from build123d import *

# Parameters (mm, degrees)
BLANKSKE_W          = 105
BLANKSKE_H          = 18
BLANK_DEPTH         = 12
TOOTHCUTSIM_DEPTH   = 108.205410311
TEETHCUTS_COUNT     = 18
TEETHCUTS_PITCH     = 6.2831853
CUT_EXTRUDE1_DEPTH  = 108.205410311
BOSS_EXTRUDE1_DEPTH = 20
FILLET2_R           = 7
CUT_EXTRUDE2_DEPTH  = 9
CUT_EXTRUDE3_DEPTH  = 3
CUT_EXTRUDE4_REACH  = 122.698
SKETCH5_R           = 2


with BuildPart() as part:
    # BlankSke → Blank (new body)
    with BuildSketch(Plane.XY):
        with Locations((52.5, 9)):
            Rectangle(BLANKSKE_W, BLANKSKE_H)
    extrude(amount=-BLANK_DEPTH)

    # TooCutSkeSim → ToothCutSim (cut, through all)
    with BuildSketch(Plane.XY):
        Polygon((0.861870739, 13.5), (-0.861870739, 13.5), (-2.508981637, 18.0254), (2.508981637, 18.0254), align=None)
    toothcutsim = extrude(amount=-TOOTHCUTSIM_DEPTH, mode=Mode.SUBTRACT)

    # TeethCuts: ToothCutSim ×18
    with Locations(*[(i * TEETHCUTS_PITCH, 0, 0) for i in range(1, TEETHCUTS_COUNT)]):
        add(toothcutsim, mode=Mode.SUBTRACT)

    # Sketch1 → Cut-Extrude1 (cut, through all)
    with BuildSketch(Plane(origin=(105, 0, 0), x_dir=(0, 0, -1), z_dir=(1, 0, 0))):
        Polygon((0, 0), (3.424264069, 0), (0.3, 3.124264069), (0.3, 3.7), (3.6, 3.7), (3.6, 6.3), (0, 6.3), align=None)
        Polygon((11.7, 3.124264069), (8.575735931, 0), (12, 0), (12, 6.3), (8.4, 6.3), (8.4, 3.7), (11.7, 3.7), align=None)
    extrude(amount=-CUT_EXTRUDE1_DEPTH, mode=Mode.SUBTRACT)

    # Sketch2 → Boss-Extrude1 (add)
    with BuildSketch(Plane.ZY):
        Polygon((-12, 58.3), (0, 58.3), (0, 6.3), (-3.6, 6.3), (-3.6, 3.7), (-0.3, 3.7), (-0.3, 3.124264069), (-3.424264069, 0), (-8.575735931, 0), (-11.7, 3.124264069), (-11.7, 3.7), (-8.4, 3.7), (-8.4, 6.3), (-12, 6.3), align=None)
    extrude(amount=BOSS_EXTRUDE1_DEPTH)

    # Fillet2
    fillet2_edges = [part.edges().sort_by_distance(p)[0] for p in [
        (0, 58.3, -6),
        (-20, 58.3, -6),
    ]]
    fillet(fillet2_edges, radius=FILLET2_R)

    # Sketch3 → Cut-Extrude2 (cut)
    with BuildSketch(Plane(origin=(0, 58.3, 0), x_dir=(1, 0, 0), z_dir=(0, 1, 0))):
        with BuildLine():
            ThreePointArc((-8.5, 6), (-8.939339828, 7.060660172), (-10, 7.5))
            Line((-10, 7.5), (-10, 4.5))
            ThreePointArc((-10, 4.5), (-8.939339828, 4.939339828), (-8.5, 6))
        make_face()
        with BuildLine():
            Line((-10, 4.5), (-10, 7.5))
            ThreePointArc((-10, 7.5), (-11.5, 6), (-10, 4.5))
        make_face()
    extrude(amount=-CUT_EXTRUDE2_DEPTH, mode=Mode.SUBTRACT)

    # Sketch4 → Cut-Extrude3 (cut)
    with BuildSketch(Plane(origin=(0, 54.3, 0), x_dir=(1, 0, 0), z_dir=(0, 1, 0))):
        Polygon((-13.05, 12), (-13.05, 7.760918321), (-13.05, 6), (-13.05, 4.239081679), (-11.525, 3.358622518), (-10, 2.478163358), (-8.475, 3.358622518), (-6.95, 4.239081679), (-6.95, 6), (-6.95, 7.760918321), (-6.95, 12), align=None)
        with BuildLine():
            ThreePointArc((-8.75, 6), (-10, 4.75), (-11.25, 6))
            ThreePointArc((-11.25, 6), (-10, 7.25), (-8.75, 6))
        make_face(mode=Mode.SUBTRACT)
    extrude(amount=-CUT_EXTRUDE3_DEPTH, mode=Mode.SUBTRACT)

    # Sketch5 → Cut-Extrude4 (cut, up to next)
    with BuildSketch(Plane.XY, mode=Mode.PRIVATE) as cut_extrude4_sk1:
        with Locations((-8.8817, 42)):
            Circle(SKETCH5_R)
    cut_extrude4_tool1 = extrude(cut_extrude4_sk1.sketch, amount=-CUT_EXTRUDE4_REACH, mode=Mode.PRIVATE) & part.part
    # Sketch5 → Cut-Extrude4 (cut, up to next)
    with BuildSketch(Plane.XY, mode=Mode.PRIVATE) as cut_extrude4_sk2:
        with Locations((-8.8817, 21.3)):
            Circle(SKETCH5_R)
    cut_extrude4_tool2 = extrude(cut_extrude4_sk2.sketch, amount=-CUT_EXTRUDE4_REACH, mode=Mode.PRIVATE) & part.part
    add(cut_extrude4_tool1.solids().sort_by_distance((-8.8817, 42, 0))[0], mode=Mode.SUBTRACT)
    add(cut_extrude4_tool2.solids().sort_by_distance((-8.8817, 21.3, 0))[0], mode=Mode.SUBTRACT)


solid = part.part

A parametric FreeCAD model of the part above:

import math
import FreeCAD as App
import Part
import Sketcher

V = App.Vector
Q = App.Units.Quantity


def edges_at(feature, points):
    """Names of the edges that pass closest to the given points."""
    edges = feature.Shape.Edges
    near = lambda p: min(range(len(edges)), key=lambda i: edges[i].distToShape(Part.Vertex(*p))[0])
    return sorted({f"Edge{near(p) + 1}" for p in points})

doc = App.newDocument("Part")
body = doc.addObject("PartDesign::Body", "Body")

sketch1 = body.newObject("Sketcher::SketchObject", "Sketch")
sketch1.AttachmentSupport = (doc.getObject("XY_Plane"), [""])
sketch1.MapMode = "FlatFace"
sketch1.addGeometry(Part.LineSegment(V(0, 18, 0), V(0, 0, 0)), False)
sketch1.addGeometry(Part.LineSegment(V(0, 0, 0), V(105, 0, 0)), False)
sketch1.addGeometry(Part.LineSegment(V(105, 0, 0), V(105, 18, 0)), False)
sketch1.addGeometry(Part.LineSegment(V(105, 18, 0), V(0, 18, 0)), False)
sketch1.addConstraint(Sketcher.Constraint("Coincident", 0, 2, 1, 1))
sketch1.addConstraint(Sketcher.Constraint("Coincident", 1, 2, 2, 1))
sketch1.addConstraint(Sketcher.Constraint("Coincident", 2, 2, 3, 1))
sketch1.addConstraint(Sketcher.Constraint("Coincident", 3, 2, 0, 1))
sketch1.addConstraint(Sketcher.Constraint("Vertical", 0))
sketch1.addConstraint(Sketcher.Constraint("Horizontal", 1))
sketch1.addConstraint(Sketcher.Constraint("Vertical", 2))
sketch1.addConstraint(Sketcher.Constraint("Horizontal", 3))
sketch1.addConstraint(Sketcher.Constraint("Coincident", 0, 2, -1, 1))
sketch1.addConstraint(Sketcher.Constraint("DistanceX", 1, 1, 1, 2, 105.0))
sketch1.addConstraint(Sketcher.Constraint("DistanceY", 0, 2, 0, 1, 18.0))
pad1 = body.newObject("PartDesign::Pad", "Pad")
pad1.Profile = sketch1
pad1.Length = 12
pad1.Reversed = True

sketch2 = body.newObject("Sketcher::SketchObject", "Sketch001")
sketch2.AttachmentSupport = (doc.getObject("XY_Plane"), [""])
sketch2.MapMode = "FlatFace"
sketch2.addGeometry(Part.LineSegment(V(-0.861871, 13.5, 0), V(0.861871, 13.5, 0)), False)
sketch2.addGeometry(Part.LineSegment(V(0.861871, 13.5, 0), V(2.508982, 18.0254, 0)), False)
sketch2.addGeometry(Part.LineSegment(V(2.508982, 18.0254, 0), V(-2.508982, 18.0254, 0)), False)
sketch2.addGeometry(Part.LineSegment(V(-2.508982, 18.0254, 0), V(-0.861871, 13.5, 0)), False)
sketch2.addConstraint(Sketcher.Constraint("Coincident", 0, 2, 1, 1))
sketch2.addConstraint(Sketcher.Constraint("Coincident", 1, 2, 2, 1))
sketch2.addConstraint(Sketcher.Constraint("Coincident", 2, 2, 3, 1))
sketch2.addConstraint(Sketcher.Constraint("Coincident", 3, 2, 0, 1))
sketch2.addConstraint(Sketcher.Constraint("Horizontal", 0))
sketch2.addConstraint(Sketcher.Constraint("Horizontal", 2))
sketch2.addConstraint(Sketcher.Constraint("Equal", 1, 3))
sketch2.addConstraint(Sketcher.Constraint("Angle", 1, Q("70 deg")))
sketch2.addConstraint(Sketcher.Constraint("DistanceY", -1, 1, 0, 2, 13.5))
sketch2.addConstraint(Sketcher.Constraint("DistanceX", 0, 1, 0, 2, 1.723741))
sketch2.addConstraint(Sketcher.Constraint("DistanceY", -1, 1, 1, 2, 18.0254))
sketch2.addConstraint(Sketcher.Constraint("DistanceX", -1, 1, 0, 2, 0.861871))
pocket1 = body.newObject("PartDesign::Pocket", "Pocket")
pocket1.Profile = sketch2
pocket1.Type = "ThroughAll"
doc.recompute()

linearpattern = body.newObject("PartDesign::LinearPattern", "LinearPattern")
linearpattern.Originals = [pocket1]
linearpattern.Direction = (doc.getObject("X_Axis"), [""])
linearpattern.Mode = "offset"
linearpattern.Offset = 6.283185
linearpattern.Occurrences = 18
body.Tip = linearpattern

sketch3 = body.newObject("Sketcher::SketchObject", "Sketch002")
sketch3.AttachmentSupport = (doc.getObject("YZ_Plane"), [""])
sketch3.MapMode = "FlatFace"
sketch3.AttachmentOffset = App.Placement(V(0, 0, 105), App.Rotation())
sketch3.addGeometry(Part.LineSegment(V(0, 0, 0), V(0, -3.424264, 0)), False)
sketch3.addGeometry(Part.LineSegment(V(0, -3.424264, 0), V(3.124264, -0.3, 0)), False)
sketch3.addGeometry(Part.LineSegment(V(3.124264, -0.3, 0), V(3.7, -0.3, 0)), False)
sketch3.addGeometry(Part.LineSegment(V(3.7, -0.3, 0), V(3.7, -3.6, 0)), False)
sketch3.addGeometry(Part.LineSegment(V(3.7, -3.6, 0), V(6.3, -3.6, 0)), False)
sketch3.addGeometry(Part.LineSegment(V(6.3, -3.6, 0), V(6.3, 0, 0)), False)
sketch3.addGeometry(Part.LineSegment(V(6.3, 0, 0), V(0, 0, 0)), False)
sketch3.addGeometry(Part.LineSegment(V(3.124264, -11.7, 0), V(0, -8.575736, 0)), False)
sketch3.addGeometry(Part.LineSegment(V(0, -8.575736, 0), V(0, -12, 0)), False)
sketch3.addGeometry(Part.LineSegment(V(0, -12, 0), V(6.3, -12, 0)), False)
sketch3.addGeometry(Part.LineSegment(V(6.3, -12, 0), V(6.3, -8.4, 0)), False)
sketch3.addGeometry(Part.LineSegment(V(6.3, -8.4, 0), V(3.7, -8.4, 0)), False)
sketch3.addGeometry(Part.LineSegment(V(3.7, -8.4, 0), V(3.7, -11.7, 0)), False)
sketch3.addGeometry(Part.LineSegment(V(3.7, -11.7, 0), V(3.124264, -11.7, 0)), False)
sketch3.addConstraint(Sketcher.Constraint("Coincident", 0, 2, 1, 1))
sketch3.addConstraint(Sketcher.Constraint("Coincident", 1, 2, 2, 1))
sketch3.addConstraint(Sketcher.Constraint("Coincident", 2, 2, 3, 1))
sketch3.addConstraint(Sketcher.Constraint("Coincident", 3, 2, 4, 1))
sketch3.addConstraint(Sketcher.Constraint("Coincident", 4, 2, 5, 1))
sketch3.addConstraint(Sketcher.Constraint("Coincident", 5, 2, 6, 1))
sketch3.addConstraint(Sketcher.Constraint("Coincident", 6, 2, 0, 1))
sketch3.addConstraint(Sketcher.Constraint("Coincident", 7, 2, 8, 1))
sketch3.addConstraint(Sketcher.Constraint("Coincident", 8, 2, 9, 1))
sketch3.addConstraint(Sketcher.Constraint("Coincident", 9, 2, 10, 1))
sketch3.addConstraint(Sketcher.Constraint("Coincident", 10, 2, 11, 1))
sketch3.addConstraint(Sketcher.Constraint("Coincident", 11, 2, 12, 1))
sketch3.addConstraint(Sketcher.Constraint("Coincident", 12, 2, 13, 1))
sketch3.addConstraint(Sketcher.Constraint("Coincident", 13, 2, 7, 1))
sketch3.addConstraint(Sketcher.Constraint("Vertical", 0))
sketch3.addConstraint(Sketcher.Constraint("Horizontal", 2))
sketch3.addConstraint(Sketcher.Constraint("Vertical", 3))
sketch3.addConstraint(Sketcher.Constraint("Horizontal", 4))
sketch3.addConstraint(Sketcher.Constraint("Vertical", 5))
sketch3.addConstraint(Sketcher.Constraint("Horizontal", 6))
sketch3.addConstraint(Sketcher.Constraint("Vertical", 8))
sketch3.addConstraint(Sketcher.Constraint("Horizontal", 9))
sketch3.addConstraint(Sketcher.Constraint("Vertical", 10))
sketch3.addConstraint(Sketcher.Constraint("Horizontal", 11))
sketch3.addConstraint(Sketcher.Constraint("Vertical", 12))
sketch3.addConstraint(Sketcher.Constraint("Horizontal", 13))
sketch3.addConstraint(Sketcher.Constraint("Coincident", 6, 2, -1, 1))
sketch3.addConstraint(Sketcher.Constraint("PointOnObject", 7, 2, -2))
sketch3.addConstraint(Sketcher.Constraint("Perpendicular", 1, 7))
sketch3.addConstraint(Sketcher.Constraint("Vertical", 5, 2, 9, 2))
sketch3.addConstraint(Sketcher.Constraint("Vertical", 3, 2, 11, 2))
sketch3.addConstraint(Sketcher.Constraint("Vertical", 1, 2, 13, 2))
sketch3.addConstraint(Sketcher.Constraint("Equal", 0, 8))
sketch3.addConstraint(Sketcher.Constraint("Equal", 5, 10))
sketch3.addConstraint(Sketcher.Constraint("Equal", 3, 12))
sketch3.addConstraint(Sketcher.Constraint("DistanceX", 4, 1, 4, 2, 2.6))
sketch3.addConstraint(Sketcher.Constraint("DistanceX", 6, 2, 6, 1, 6.3))
sketch3.addConstraint(Sketcher.Constraint("DistanceY", 3, 2, 3, 1, 3.3))
sketch3.addConstraint(Sketcher.Constraint("DistanceY", 5, 1, 5, 2, 3.6))
sketch3.addConstraint(Sketcher.Constraint("DistanceY", 8, 2, -1, 1, 12.0))
sketch3.addConstraint(Sketcher.Constraint("DistanceX", 2, 1, 2, 2, 0.575736))
pocket2 = body.newObject("PartDesign::Pocket", "Pocket001")
pocket2.Profile = sketch3
pocket2.Type = "ThroughAll"

sketch4 = body.newObject("Sketcher::SketchObject", "Sketch003")
sketch4.AttachmentSupport = (doc.getObject("YZ_Plane"), [""])
sketch4.MapMode = "FlatFace"
sketch4.addGeometry(Part.LineSegment(V(58.3, 0, 0), V(58.3, -12, 0)), False)
sketch4.addGeometry(Part.LineSegment(V(58.3, -12, 0), V(6.3, -12, 0)), False)
sketch4.addGeometry(Part.LineSegment(V(6.3, -12, 0), V(6.3, -8.4, 0)), False)
sketch4.addGeometry(Part.LineSegment(V(6.3, -8.4, 0), V(3.7, -8.4, 0)), False)
sketch4.addGeometry(Part.LineSegment(V(3.7, -8.4, 0), V(3.7, -11.7, 0)), False)
sketch4.addGeometry(Part.LineSegment(V(3.7, -11.7, 0), V(3.124264, -11.7, 0)), False)
sketch4.addGeometry(Part.LineSegment(V(3.124264, -11.7, 0), V(0, -8.575736, 0)), False)
sketch4.addGeometry(Part.LineSegment(V(0, -8.575736, 0), V(0, -3.424264, 0)), False)
sketch4.addGeometry(Part.LineSegment(V(0, -3.424264, 0), V(3.124264, -0.3, 0)), False)
sketch4.addGeometry(Part.LineSegment(V(3.124264, -0.3, 0), V(3.7, -0.3, 0)), False)
sketch4.addGeometry(Part.LineSegment(V(3.7, -0.3, 0), V(3.7, -3.6, 0)), False)
sketch4.addGeometry(Part.LineSegment(V(3.7, -3.6, 0), V(6.3, -3.6, 0)), False)
sketch4.addGeometry(Part.LineSegment(V(6.3, -3.6, 0), V(6.3, 0, 0)), False)
sketch4.addGeometry(Part.LineSegment(V(6.3, 0, 0), V(58.3, 0, 0)), False)
sketch4.addConstraint(Sketcher.Constraint("Coincident", 0, 2, 1, 1))
sketch4.addConstraint(Sketcher.Constraint("Coincident", 1, 2, 2, 1))
sketch4.addConstraint(Sketcher.Constraint("Coincident", 2, 2, 3, 1))
sketch4.addConstraint(Sketcher.Constraint("Coincident", 3, 2, 4, 1))
sketch4.addConstraint(Sketcher.Constraint("Coincident", 4, 2, 5, 1))
sketch4.addConstraint(Sketcher.Constraint("Coincident", 5, 2, 6, 1))
sketch4.addConstraint(Sketcher.Constraint("Coincident", 6, 2, 7, 1))
sketch4.addConstraint(Sketcher.Constraint("Coincident", 7, 2, 8, 1))
sketch4.addConstraint(Sketcher.Constraint("Coincident", 8, 2, 9, 1))
sketch4.addConstraint(Sketcher.Constraint("Coincident", 9, 2, 10, 1))
sketch4.addConstraint(Sketcher.Constraint("Coincident", 10, 2, 11, 1))
sketch4.addConstraint(Sketcher.Constraint("Coincident", 11, 2, 12, 1))
sketch4.addConstraint(Sketcher.Constraint("Coincident", 12, 2, 13, 1))
sketch4.addConstraint(Sketcher.Constraint("Coincident", 13, 2, 0, 1))
sketch4.addConstraint(Sketcher.Constraint("Vertical", 0))
sketch4.addConstraint(Sketcher.Constraint("Horizontal", 1))
sketch4.addConstraint(Sketcher.Constraint("Vertical", 2))
sketch4.addConstraint(Sketcher.Constraint("Horizontal", 3))
sketch4.addConstraint(Sketcher.Constraint("Vertical", 4))
sketch4.addConstraint(Sketcher.Constraint("Horizontal", 5))
sketch4.addConstraint(Sketcher.Constraint("Vertical", 7))
sketch4.addConstraint(Sketcher.Constraint("Horizontal", 9))
sketch4.addConstraint(Sketcher.Constraint("Vertical", 10))
sketch4.addConstraint(Sketcher.Constraint("Horizontal", 11))
sketch4.addConstraint(Sketcher.Constraint("Vertical", 12))
sketch4.addConstraint(Sketcher.Constraint("Horizontal", 13))
sketch4.addConstraint(Sketcher.Constraint("PointOnObject", 6, 2, -2))
sketch4.addConstraint(Sketcher.Constraint("PointOnObject", 12, 2, -1))
sketch4.addConstraint(Sketcher.Constraint("Perpendicular", 6, 8))
sketch4.addConstraint(Sketcher.Constraint("Vertical", 5, 2, 8, 2))
sketch4.addConstraint(Sketcher.Constraint("Vertical", 4, 2, 9, 2))
sketch4.addConstraint(Sketcher.Constraint("Vertical", 2, 2, 11, 2))
sketch4.addConstraint(Sketcher.Constraint("Equal", 4, 10))
sketch4.addConstraint(Sketcher.Constraint("Equal", 2, 12))
sketch4.addConstraint(Sketcher.Constraint("Equal", 6, 8))
sketch4.addConstraint(Sketcher.Constraint("DistanceX", 1, 2, 1, 1, 52.0))
sketch4.addConstraint(Sketcher.Constraint("DistanceY", 0, 2, 0, 1, 12.0))
sketch4.addConstraint(Sketcher.Constraint("DistanceX", 3, 2, 3, 1, 2.6))
sketch4.addConstraint(Sketcher.Constraint("DistanceY", 2, 1, 2, 2, 3.6))
sketch4.addConstraint(Sketcher.Constraint("DistanceY", 4, 2, 4, 1, 3.3))
sketch4.addConstraint(Sketcher.Constraint("DistanceX", -1, 1, 0, 2, 58.3))
sketch4.addConstraint(Sketcher.Constraint("DistanceY", 7, 1, 7, 2, 5.151472))
pad2 = body.newObject("PartDesign::Pad", "Pad001")
pad2.Profile = sketch4
pad2.Length = 20
pad2.Reversed = True
doc.recompute()

fillet = body.newObject("PartDesign::Fillet", "Fillet")
fillet.Base = (pad2, edges_at(pad2, [(0, 58.3, -6), (-20, 58.3, -6)]))
fillet.Radius = 7

sketch5 = body.newObject("Sketcher::SketchObject", "Sketch004")
sketch5.AttachmentSupport = (doc.getObject("XZ_Plane"), [""])
sketch5.MapMode = "FlatFace"
sketch5.AttachmentOffset = App.Placement(V(0, 0, -58.3), App.Rotation())
sketch5.addGeometry(Part.ArcOfCircle(Part.Circle(V(-10, -6, 0), V(0, 0, 1), 1.5), math.radians(-90), math.radians(0)), False)
sketch5.addGeometry(Part.ArcOfCircle(Part.Circle(V(-10, -6, 0), V(0, 0, 1), 1.5), math.radians(90), math.radians(270)), False)
sketch5.addGeometry(Part.ArcOfCircle(Part.Circle(V(-10, -6, 0), V(0, 0, 1), 1.5), math.radians(0), math.radians(90)), False)
sketch5.addConstraint(Sketcher.Constraint("Tangent", 0, 1, 1, 2))
sketch5.addConstraint(Sketcher.Constraint("Tangent", 1, 1, 2, 2))
sketch5.addConstraint(Sketcher.Constraint("Tangent", 2, 1, 0, 2))
sketch5.addConstraint(Sketcher.Constraint("Horizontal", 1, 3, 2, 1))
sketch5.addConstraint(Sketcher.Constraint("Vertical", 2, 3, 0, 1))
sketch5.addConstraint(Sketcher.Constraint("Vertical", 0, 1, 1, 1))
sketch5.addConstraint(Sketcher.Constraint("Radius", 0, 1.5))
sketch5.addConstraint(Sketcher.Constraint("DistanceX", 0, 3, -1, 1, 10.0))
sketch5.addConstraint(Sketcher.Constraint("DistanceY", 0, 3, -1, 1, 6.0))
pocket3 = body.newObject("PartDesign::Pocket", "Pocket002")
pocket3.Profile = sketch5
pocket3.Length = 9
pocket3.Reversed = True

sketch6 = body.newObject("Sketcher::SketchObject", "Sketch005")
sketch6.AttachmentSupport = (doc.getObject("XZ_Plane"), [""])
sketch6.MapMode = "FlatFace"
sketch6.AttachmentOffset = App.Placement(V(0, 0, -54.3), App.Rotation())
sketch6.addGeometry(Part.LineSegment(V(-13.05, -12, 0), V(-13.05, -4.239082, 0)), False)
sketch6.addGeometry(Part.LineSegment(V(-13.05, -4.239082, 0), V(-11.525, -3.358623, 0)), False)
sketch6.addGeometry(Part.LineSegment(V(-11.525, -3.358623, 0), V(-10, -2.478163, 0)), False)
sketch6.addGeometry(Part.LineSegment(V(-10, -2.478163, 0), V(-8.475, -3.358623, 0)), False)
sketch6.addGeometry(Part.LineSegment(V(-8.475, -3.358623, 0), V(-6.95, -4.239082, 0)), False)
sketch6.addGeometry(Part.LineSegment(V(-6.95, -4.239082, 0), V(-6.95, -12, 0)), False)
sketch6.addGeometry(Part.LineSegment(V(-6.95, -12, 0), V(-13.05, -12, 0)), False)
sketch6.addGeometry(Part.Circle(V(-10, -6, 0), V(0, 0, 1), 1.25), False)
sketch6.addConstraint(Sketcher.Constraint("Coincident", 0, 2, 1, 1))
sketch6.addConstraint(Sketcher.Constraint("Coincident", 1, 2, 2, 1))
sketch6.addConstraint(Sketcher.Constraint("Coincident", 2, 2, 3, 1))
sketch6.addConstraint(Sketcher.Constraint("Coincident", 3, 2, 4, 1))
sketch6.addConstraint(Sketcher.Constraint("Coincident", 4, 2, 5, 1))
sketch6.addConstraint(Sketcher.Constraint("Coincident", 5, 2, 6, 1))
sketch6.addConstraint(Sketcher.Constraint("Coincident", 6, 2, 0, 1))
sketch6.addConstraint(Sketcher.Constraint("Vertical", 0))
sketch6.addConstraint(Sketcher.Constraint("Vertical", 5))
sketch6.addConstraint(Sketcher.Constraint("Horizontal", 6))
sketch6.addConstraint(Sketcher.Constraint("Parallel", 1, 2))
sketch6.addConstraint(Sketcher.Constraint("Parallel", 3, 4))
sketch6.addConstraint(Sketcher.Constraint("Horizontal", 1, 2, 3, 2))
sketch6.addConstraint(Sketcher.Constraint("Horizontal", 0, 2, 4, 2))
sketch6.addConstraint(Sketcher.Constraint("Vertical", 7, 3, 2, 2))
sketch6.addConstraint(Sketcher.Constraint("Equal", 1, 2))
sketch6.addConstraint(Sketcher.Constraint("Equal", 2, 3))
sketch6.addConstraint(Sketcher.Constraint("Diameter", 7, 2.5))
sketch6.addConstraint(Sketcher.Constraint("Angle", 1, Q("30 deg")))
sketch6.addConstraint(Sketcher.Constraint("DistanceX", 6, 2, 6, 1, 6.1))
sketch6.addConstraint(Sketcher.Constraint("DistanceX", 7, 3, -1, 1, 10.0))
sketch6.addConstraint(Sketcher.Constraint("DistanceY", 7, 3, -1, 1, 6.0))
sketch6.addConstraint(Sketcher.Constraint("DistanceY", 5, 2, -1, 1, 12.0))
sketch6.addConstraint(Sketcher.Constraint("DistanceY", 0, 1, 0, 2, 7.760918))
pocket4 = body.newObject("PartDesign::Pocket", "Pocket003")
pocket4.Profile = sketch6
pocket4.Length = 3
pocket4.Reversed = True

sketch7 = body.newObject("Sketcher::SketchObject", "Sketch006")
sketch7.AttachmentSupport = (doc.getObject("XY_Plane"), [""])
sketch7.MapMode = "FlatFace"
sketch7.addGeometry(Part.Circle(V(-8.8817, 42, 0), V(0, 0, 1), 2), False)
sketch7.addConstraint(Sketcher.Constraint("Diameter", 0, 4.0))
sketch7.addConstraint(Sketcher.Constraint("DistanceY", -1, 1, 0, 3, 42.0))
sketch7.addConstraint(Sketcher.Constraint("DistanceX", 0, 3, -1, 1, 8.8817))
pocket5 = body.newObject("PartDesign::Pocket", "Pocket004")
pocket5.Profile = sketch7
pocket5.Type = "UpToFirst"

sketch8 = body.newObject("Sketcher::SketchObject", "Sketch007")
sketch8.AttachmentSupport = (doc.getObject("XY_Plane"), [""])
sketch8.MapMode = "FlatFace"
sketch8.addGeometry(Part.Circle(V(-8.8817, 21.3, 0), V(0, 0, 1), 2), False)
sketch8.addConstraint(Sketcher.Constraint("Diameter", 0, 4.0))
sketch8.addConstraint(Sketcher.Constraint("DistanceY", -1, 1, 0, 3, 21.3))
sketch8.addConstraint(Sketcher.Constraint("DistanceX", 0, 3, -1, 1, 8.8817))
pocket6 = body.newObject("PartDesign::Pocket", "Pocket005")
pocket6.Profile = sketch8
pocket6.Type = "UpToFirst"

doc.recompute()
